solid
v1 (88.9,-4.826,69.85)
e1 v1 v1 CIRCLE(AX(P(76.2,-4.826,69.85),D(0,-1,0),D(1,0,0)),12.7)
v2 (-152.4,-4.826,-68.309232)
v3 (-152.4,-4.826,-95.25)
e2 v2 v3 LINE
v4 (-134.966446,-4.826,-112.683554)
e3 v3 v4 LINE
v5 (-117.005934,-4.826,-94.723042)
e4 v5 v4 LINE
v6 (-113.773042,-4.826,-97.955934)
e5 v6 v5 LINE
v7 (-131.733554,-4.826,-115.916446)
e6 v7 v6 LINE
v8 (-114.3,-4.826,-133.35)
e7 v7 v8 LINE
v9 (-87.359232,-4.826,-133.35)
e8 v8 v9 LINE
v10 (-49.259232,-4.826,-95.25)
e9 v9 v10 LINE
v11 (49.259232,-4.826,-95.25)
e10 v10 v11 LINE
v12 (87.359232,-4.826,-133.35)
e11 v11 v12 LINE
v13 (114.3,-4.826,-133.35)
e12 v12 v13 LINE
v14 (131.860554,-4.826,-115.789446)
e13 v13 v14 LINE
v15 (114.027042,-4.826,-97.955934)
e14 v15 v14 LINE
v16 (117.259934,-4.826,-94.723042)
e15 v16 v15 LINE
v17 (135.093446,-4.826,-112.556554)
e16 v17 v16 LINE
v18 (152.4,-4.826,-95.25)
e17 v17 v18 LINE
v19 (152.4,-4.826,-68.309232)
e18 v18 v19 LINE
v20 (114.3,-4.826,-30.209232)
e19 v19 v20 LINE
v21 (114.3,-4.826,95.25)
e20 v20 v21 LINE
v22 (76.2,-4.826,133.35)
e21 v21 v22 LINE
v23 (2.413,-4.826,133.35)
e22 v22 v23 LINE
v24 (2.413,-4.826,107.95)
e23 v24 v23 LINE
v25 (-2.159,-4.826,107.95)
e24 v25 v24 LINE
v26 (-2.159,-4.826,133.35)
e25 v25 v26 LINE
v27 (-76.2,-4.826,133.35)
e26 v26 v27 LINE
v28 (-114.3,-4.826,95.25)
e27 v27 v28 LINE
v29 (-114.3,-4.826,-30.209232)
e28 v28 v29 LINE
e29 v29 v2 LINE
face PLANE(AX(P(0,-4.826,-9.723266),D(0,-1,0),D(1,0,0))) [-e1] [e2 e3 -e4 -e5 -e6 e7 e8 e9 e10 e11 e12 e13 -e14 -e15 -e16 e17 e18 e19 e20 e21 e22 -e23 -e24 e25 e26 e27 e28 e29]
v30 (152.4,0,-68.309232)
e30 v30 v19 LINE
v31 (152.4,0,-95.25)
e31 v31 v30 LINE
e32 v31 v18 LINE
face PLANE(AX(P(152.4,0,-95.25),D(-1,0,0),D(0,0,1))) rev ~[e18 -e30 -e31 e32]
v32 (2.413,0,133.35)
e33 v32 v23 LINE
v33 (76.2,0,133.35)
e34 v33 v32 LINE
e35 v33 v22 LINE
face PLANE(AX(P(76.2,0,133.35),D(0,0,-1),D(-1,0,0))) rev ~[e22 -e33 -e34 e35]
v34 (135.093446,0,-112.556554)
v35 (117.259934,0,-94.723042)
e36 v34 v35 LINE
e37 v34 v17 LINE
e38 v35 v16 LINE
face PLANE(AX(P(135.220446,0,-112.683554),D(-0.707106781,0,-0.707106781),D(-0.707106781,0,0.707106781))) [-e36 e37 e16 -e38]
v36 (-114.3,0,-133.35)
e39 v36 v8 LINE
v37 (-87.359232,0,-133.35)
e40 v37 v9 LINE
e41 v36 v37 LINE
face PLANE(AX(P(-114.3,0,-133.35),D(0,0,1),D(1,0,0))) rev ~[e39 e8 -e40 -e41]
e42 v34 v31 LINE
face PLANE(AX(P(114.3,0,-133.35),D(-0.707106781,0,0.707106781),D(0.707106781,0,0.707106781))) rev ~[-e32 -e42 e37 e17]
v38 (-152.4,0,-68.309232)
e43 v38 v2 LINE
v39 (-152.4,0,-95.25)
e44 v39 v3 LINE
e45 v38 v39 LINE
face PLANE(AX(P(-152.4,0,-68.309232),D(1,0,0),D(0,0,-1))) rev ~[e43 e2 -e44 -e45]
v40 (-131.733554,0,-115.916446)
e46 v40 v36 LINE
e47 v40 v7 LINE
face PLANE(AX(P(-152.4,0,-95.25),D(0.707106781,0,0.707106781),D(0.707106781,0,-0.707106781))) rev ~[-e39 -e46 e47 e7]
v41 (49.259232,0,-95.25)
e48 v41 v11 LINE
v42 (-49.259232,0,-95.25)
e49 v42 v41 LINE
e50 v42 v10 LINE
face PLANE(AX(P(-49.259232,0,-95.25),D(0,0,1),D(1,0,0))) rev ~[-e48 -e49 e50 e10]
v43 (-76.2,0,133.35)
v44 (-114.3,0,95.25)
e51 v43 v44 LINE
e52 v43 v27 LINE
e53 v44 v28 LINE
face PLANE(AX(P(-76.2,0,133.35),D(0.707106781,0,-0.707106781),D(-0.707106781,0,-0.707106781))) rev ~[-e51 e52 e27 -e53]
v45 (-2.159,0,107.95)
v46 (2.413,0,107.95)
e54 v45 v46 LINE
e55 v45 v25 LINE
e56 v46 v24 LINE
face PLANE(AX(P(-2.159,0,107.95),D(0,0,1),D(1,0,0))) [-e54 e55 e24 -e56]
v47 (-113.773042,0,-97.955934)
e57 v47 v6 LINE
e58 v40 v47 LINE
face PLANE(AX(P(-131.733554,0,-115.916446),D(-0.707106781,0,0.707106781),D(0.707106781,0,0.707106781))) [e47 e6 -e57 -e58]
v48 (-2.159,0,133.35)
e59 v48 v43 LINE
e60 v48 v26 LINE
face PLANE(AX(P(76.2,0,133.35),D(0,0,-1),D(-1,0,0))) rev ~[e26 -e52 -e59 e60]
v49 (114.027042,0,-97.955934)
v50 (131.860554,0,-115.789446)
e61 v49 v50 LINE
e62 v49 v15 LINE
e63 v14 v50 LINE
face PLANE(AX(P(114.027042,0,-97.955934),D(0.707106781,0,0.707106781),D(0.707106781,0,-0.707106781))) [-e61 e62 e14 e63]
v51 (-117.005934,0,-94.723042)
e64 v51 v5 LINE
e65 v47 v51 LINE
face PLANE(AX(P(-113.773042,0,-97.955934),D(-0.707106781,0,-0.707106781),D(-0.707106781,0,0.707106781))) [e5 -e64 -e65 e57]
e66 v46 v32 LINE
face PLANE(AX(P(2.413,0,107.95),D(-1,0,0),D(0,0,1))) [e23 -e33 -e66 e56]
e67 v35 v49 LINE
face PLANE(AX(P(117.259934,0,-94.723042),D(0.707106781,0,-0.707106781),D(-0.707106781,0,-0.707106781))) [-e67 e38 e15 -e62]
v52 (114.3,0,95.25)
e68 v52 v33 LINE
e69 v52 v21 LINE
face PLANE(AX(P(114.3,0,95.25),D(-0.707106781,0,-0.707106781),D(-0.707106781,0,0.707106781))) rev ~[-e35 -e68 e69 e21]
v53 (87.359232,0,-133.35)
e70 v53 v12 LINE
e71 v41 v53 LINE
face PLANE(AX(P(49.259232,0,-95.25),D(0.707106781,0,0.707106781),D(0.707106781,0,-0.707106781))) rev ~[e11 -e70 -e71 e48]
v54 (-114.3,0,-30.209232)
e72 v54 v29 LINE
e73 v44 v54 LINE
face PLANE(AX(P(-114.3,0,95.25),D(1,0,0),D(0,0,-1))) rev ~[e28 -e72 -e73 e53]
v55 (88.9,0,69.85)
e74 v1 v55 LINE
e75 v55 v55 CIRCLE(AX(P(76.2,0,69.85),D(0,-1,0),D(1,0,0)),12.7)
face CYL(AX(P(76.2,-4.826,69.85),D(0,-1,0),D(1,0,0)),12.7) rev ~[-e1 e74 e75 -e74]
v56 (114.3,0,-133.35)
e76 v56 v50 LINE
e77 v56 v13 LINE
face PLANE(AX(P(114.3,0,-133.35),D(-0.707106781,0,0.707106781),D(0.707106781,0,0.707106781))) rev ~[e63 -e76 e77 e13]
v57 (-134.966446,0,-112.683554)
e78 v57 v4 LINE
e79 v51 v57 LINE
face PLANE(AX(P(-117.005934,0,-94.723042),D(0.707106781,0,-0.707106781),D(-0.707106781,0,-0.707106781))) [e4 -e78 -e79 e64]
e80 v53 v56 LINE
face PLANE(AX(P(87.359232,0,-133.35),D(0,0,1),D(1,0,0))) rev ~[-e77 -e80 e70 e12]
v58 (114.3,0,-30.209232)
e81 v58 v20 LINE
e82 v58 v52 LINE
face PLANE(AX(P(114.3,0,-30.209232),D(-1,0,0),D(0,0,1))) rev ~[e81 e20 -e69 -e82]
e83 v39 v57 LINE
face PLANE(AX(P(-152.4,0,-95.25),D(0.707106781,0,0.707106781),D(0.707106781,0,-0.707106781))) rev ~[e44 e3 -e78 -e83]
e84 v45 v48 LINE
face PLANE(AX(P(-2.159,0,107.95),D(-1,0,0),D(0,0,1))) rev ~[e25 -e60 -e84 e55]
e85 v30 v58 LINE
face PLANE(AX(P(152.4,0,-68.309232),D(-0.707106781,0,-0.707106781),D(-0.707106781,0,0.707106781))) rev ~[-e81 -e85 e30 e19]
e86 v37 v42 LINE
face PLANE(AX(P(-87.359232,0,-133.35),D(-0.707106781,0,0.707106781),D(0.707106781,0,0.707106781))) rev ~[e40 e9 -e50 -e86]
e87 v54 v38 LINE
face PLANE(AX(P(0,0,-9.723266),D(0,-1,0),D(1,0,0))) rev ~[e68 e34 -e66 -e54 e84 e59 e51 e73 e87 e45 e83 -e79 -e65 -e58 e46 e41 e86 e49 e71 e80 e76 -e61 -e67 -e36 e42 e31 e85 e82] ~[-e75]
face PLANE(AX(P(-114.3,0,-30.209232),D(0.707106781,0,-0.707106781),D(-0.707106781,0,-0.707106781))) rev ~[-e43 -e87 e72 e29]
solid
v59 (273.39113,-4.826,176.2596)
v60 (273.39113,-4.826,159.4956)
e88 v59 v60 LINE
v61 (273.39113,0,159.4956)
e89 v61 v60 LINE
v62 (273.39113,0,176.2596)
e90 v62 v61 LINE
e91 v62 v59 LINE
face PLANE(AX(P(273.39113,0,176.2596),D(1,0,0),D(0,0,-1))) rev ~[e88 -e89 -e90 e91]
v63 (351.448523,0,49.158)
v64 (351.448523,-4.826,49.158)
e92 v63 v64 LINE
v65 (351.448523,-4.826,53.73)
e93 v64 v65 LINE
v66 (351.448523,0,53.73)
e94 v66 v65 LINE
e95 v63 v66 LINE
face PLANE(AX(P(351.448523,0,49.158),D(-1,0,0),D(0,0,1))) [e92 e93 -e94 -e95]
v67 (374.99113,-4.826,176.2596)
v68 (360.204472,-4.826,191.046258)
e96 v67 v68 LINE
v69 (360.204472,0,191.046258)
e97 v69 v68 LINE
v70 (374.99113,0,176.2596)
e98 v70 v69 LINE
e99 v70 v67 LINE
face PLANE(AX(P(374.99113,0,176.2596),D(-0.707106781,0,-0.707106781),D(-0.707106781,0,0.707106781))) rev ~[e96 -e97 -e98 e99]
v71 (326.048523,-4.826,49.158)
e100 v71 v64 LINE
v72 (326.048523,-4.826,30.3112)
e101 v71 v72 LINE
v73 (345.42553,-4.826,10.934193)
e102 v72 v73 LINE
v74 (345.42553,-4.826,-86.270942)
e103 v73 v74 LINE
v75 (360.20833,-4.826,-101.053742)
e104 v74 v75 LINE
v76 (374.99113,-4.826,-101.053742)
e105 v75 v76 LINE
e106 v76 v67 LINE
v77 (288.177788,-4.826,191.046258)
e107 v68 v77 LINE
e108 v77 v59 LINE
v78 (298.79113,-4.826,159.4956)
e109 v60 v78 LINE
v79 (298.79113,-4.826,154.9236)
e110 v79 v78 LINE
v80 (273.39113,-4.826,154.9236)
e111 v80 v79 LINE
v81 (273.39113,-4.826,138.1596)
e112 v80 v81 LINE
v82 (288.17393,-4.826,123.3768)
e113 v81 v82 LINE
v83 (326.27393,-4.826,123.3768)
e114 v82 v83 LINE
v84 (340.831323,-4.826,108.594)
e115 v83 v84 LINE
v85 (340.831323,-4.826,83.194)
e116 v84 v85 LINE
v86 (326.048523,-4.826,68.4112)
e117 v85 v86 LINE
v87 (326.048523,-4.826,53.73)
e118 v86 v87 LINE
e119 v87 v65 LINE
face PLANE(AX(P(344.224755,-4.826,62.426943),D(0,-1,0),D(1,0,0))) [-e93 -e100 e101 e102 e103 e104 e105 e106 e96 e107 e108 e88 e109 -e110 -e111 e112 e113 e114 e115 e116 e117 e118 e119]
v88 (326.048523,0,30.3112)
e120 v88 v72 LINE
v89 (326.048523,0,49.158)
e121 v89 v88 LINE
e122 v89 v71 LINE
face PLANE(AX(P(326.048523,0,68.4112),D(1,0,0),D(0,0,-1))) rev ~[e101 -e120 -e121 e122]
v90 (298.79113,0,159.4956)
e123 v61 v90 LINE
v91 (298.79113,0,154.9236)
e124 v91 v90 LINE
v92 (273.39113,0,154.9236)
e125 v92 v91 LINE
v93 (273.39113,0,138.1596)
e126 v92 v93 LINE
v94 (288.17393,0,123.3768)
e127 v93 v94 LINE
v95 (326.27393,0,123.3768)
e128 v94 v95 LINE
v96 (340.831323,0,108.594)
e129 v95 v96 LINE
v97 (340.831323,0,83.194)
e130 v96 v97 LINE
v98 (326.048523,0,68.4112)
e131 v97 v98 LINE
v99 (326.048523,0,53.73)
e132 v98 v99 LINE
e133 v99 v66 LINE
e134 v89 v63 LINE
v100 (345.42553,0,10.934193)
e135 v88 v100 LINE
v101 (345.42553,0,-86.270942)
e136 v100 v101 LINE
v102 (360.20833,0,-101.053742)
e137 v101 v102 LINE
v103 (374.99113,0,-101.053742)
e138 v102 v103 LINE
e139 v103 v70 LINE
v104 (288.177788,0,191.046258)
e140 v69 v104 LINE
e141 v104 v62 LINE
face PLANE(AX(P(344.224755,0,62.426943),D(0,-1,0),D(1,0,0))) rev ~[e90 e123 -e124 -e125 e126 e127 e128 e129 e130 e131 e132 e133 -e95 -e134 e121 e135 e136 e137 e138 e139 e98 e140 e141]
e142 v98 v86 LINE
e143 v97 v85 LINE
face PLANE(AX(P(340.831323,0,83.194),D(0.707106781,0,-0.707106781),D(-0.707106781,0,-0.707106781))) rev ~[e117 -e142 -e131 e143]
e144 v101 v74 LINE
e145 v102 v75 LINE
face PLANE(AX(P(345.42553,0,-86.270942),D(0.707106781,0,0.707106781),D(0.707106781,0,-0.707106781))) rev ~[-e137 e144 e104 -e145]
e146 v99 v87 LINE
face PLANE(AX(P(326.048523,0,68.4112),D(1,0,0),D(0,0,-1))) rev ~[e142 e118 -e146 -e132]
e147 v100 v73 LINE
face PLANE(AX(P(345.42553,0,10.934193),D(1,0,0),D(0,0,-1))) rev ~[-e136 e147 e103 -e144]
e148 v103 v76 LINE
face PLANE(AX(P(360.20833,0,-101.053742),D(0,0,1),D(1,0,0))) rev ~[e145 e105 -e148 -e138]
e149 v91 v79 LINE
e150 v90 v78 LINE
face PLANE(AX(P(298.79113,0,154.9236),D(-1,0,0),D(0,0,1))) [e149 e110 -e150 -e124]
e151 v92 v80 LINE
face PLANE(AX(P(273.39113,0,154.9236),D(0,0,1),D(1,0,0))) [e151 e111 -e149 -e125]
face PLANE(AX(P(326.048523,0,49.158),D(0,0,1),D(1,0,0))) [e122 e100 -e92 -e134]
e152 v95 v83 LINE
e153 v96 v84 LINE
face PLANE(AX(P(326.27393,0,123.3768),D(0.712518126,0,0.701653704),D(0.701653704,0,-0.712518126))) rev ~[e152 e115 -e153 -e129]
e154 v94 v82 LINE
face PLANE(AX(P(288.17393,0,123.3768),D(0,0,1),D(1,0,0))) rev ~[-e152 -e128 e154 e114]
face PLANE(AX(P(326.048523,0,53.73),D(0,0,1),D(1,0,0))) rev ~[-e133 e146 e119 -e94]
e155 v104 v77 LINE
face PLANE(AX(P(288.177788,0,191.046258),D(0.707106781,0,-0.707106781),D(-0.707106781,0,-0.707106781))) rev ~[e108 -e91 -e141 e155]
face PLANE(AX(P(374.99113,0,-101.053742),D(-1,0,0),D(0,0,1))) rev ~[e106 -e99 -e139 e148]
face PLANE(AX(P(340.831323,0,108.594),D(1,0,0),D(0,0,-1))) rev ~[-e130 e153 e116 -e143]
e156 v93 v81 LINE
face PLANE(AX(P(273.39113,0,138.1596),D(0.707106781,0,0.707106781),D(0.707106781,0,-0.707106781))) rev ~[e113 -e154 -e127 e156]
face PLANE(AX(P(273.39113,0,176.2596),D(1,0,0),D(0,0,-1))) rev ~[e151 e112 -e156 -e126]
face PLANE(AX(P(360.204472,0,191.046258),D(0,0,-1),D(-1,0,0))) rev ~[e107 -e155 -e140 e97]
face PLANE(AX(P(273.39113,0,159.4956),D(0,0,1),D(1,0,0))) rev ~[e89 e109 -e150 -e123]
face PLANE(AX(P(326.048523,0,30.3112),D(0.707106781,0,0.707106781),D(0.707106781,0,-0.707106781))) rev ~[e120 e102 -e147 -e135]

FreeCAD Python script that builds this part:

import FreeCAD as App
import Part
import Sketcher
Q = App.Units.Quantity


def add_polygon(sketch, points):
    """Adds a closed chain of lines whose ends are joined by coincident constraints."""
    first, n = sketch.GeometryCount, len(points)
    for a, b in zip(points, points[1:] + points[:1]):
        sketch.addGeometry(Part.LineSegment(App.Vector(*a, 0), App.Vector(*b, 0)), False)
    for i in range(n):
        sketch.addConstraint(Sketcher.Constraint("Coincident", first + i, 2, first + (i + 1) % n, 1))

doc = App.newDocument("Part")
body = doc.addObject("PartDesign::Body", "Body")

# Sketch on XZ plane
sketch1 = body.newObject("Sketcher::SketchObject", "Sketch")
sketch1.AttachmentSupport = (doc.getObject("XZ_Plane"), [""])
sketch1.MapMode = "FlatFace"
add_polygon(sketch1, [(114, 95), (76, 133), (-76, 133), (-114, 95), (-114, -30), (-152, -68), (-152, -95), (-114, -133), (-87, -133), (-49, -95), (49, -95), (87, -133), (114, -133), (152, -95), (152, -68), (114, -30)])  # lines 0-15
sketch1.addConstraint([
    Sketcher.Constraint("Horizontal", 1),
    Sketcher.Constraint("Vertical", 3),
    Sketcher.Constraint("Vertical", 5),
    Sketcher.Constraint("Horizontal", 7),
    Sketcher.Constraint("Horizontal", 9),
    Sketcher.Constraint("Horizontal", 11),
    Sketcher.Constraint("Vertical", 13),
    Sketcher.Constraint("Vertical", 15),
    Sketcher.Constraint("Symmetric", 7, 2, 10, 2, -2),
    Sketcher.Constraint("Symmetric", 5, 2, 12, 2, -2),
    Sketcher.Constraint("Symmetric", 3, 2, 14, 2, -2),
    Sketcher.Constraint("Perpendicular", 0, 2),
    Sketcher.Constraint("Parallel", 2, 4),
    Sketcher.Constraint("Perpendicular", 4, 6),
    Sketcher.Constraint("Perpendicular", 6, 8),
    Sketcher.Constraint("Perpendicular", 8, 10),
    Sketcher.Constraint("Perpendicular", 10, 12),
    Sketcher.Constraint("Perpendicular", 12, 14),
    Sketcher.Constraint("Horizontal", 5, 2, 8, 2),
    Sketcher.Constraint("Horizontal", 4, 2, 13, 2),
    Sketcher.Constraint("Horizontal", 2, 2, 15, 2),
    Sketcher.Constraint("Vertical", 3, 2, 6, 2),
    Sketcher.Constraint("Equal", 11, 5),
    Sketcher.Constraint("Equal", 2, 4),
    Sketcher.Constraint("DistanceX", 1, 2, 1, 1, Q("6 in")),
    Sketcher.Constraint("DistanceX", 4, 2, -1, 1, Q("6 in")),
    Sketcher.Constraint("DistanceY", 5, 2, 1, 2, Q("9 in")),
    Sketcher.Constraint("DistanceY", -1, 1, 0, 2, Q("5.25 in")),
    Sketcher.Constraint("DistanceY", 3, 2, 3, 1, Q("125.459232 mm")),
])
pad1 = body.newObject("PartDesign::Pad", "Pad")
pad1.Profile = sketch1
pad1.Length = Q("0.19 in")
body2 = doc.addObject("PartDesign::Body", "Body001")

# Sketch on XZ plane
sketch2 = body2.newObject("Sketcher::SketchObject", "Sketch001")
sketch2.AttachmentSupport = (doc.getObject("XZ_Plane001"), [""])
sketch2.MapMode = "FlatFace"
add_polygon(sketch2, [(375, 176), (360, 191), (288, 191), (273, 176), (273, 138), (288, 123), (326, 123), (341, 109), (341, 83), (326, 68), (326, 30), (345, 11), (345, -86), (360, -101), (375, -101)])  # lines 0-14
sketch2.addConstraint([
    Sketcher.Constraint("Horizontal", 1),
    Sketcher.Constraint("Vertical", 3),
    Sketcher.Constraint("Horizontal", 5),
    Sketcher.Constraint("Vertical", 7),
    Sketcher.Constraint("Vertical", 9),
    Sketcher.Constraint("Vertical", 11),
    Sketcher.Constraint("Horizontal", 13),
    Sketcher.Constraint("Vertical", 14),
    Sketcher.Constraint("Perpendicular", 0, 2),
    Sketcher.Constraint("Perpendicular", 2, 4),
    Sketcher.Constraint("Perpendicular", 4, 8),
    Sketcher.Constraint("Perpendicular", 8, 10),
    Sketcher.Constraint("Parallel", 10, 12),
    Sketcher.Constraint("Horizontal", 2, 2, 14, 2),
    Sketcher.Constraint("Equal", 5, 3),
    Sketcher.Constraint("Equal", 3, 9),
    Sketcher.Constraint("Equal", 0, 2),
    Sketcher.Constraint("Equal", 4, 8),
    Sketcher.Constraint("Equal", 8, 12),
    Sketcher.Constraint("DistanceY", 7, 2, 7, 1, Q("1 in")),
    Sketcher.Constraint("DistanceX", 5, 1, 5, 2, Q("1.5 in")),
    Sketcher.Constraint("DistanceX", 13, 1, 13, 2, Q("0.582 in")),
    Sketcher.Constraint("DistanceX", 3, 2, 4, 2, Q("0.582 in")),
    Sketcher.Constraint("DistanceY", 6, 2, 5, 2, Q("0.582 in")),
    Sketcher.Constraint("DistanceX", 5, 2, 10, 2, Q("0.754 in")),
    Sketcher.Constraint("DistanceY", -1, 1, 2, 2, Q("176.2596 mm")),
    Sketcher.Constraint("Distance", 6, Q("20.747262 mm")),
    Sketcher.Constraint("DistanceX", 1, 2, 1, 1, Q("72.026684 mm")),
    Sketcher.Constraint("DistanceY", 11, 2, 11, 1, Q("97.205135 mm")),
    Sketcher.Constraint("DistanceX", -1, 1, 0, 2, Q("360.204472 mm")),
])
pad2 = body2.newObject("PartDesign::Pad", "Pad001")
pad2.Profile = sketch2
pad2.Length = Q("0.19 in")
body3 = doc.addObject("PartDesign::Body", "Body002")
body3.AllowCompound = True

# Sketch on XZ plane
sketch3 = body3.newObject("Sketcher::SketchObject", "Sketch002")
sketch3.AttachmentSupport = (doc.getObject("XZ_Plane002"), [""])
sketch3.MapMode = "FlatFace"
add_polygon(sketch3, [(-2.2, 133.3), (-2.2, 108), (2.4, 108), (2.4, 133.3)])  # lines 0-3
add_polygon(sketch3, [(-135, -112.7), (-131.7, -115.9), (-113.8, -98), (-117, -94.7)])  # lines 4-7
add_polygon(sketch3, [(114, -98), (132, -115.9), (135.2, -112.7), (117.3, -94.7)])  # lines 8-11
add_polygon(sketch3, [(273.4, 159.5), (273.4, 154.9), (298.8, 154.9), (298.8, 159.5)])  # lines 12-15
add_polygon(sketch3, [(326, 53.7), (326, 49.2), (351.4, 49.2), (351.4, 53.7)])  # lines 16-19
sketch3.addConstraint([
    Sketcher.Constraint("Vertical", 0),
    Sketcher.Constraint("Horizontal", 1),
    Sketcher.Constraint("Vertical", 2),
    Sketcher.Constraint("Horizontal", 3),
    Sketcher.Constraint("Vertical", 12),
    Sketcher.Constraint("Horizontal", 13),
    Sketcher.Constraint("Vertical", 14),
    Sketcher.Constraint("Horizontal", 15),
    Sketcher.Constraint("Vertical", 16),
    Sketcher.Constraint("Horizontal", 17),
    Sketcher.Constraint("Vertical", 18),
    Sketcher.Constraint("Horizontal", 19),
    Sketcher.Constraint("Perpendicular", 4, 5),
    Sketcher.Constraint("Perpendicular", 5, 6),
    Sketcher.Constraint("Perpendicular", 6, 7),
    Sketcher.Constraint("Perpendicular", 7, 8),
    Sketcher.Constraint("Perpendicular", 8, 9),
    Sketcher.Constraint("Perpendicular", 9, 10),
    Sketcher.Constraint("Perpendicular", 10, 11),
    Sketcher.Constraint("Horizontal", 4, 2, 8, 2),
    Sketcher.Constraint("Horizontal", 7, 2, 9, 2),
    Sketcher.Constraint("Horizontal", 6, 2, 10, 2),
    Sketcher.Constraint("Equal", 15, 17),
    Sketcher.Constraint("Equal", 19, 0),
    Sketcher.Constraint("Equal", 3, 12),
    Sketcher.Constraint("Equal", 14, 16),
    Sketcher.Constraint("Equal", 7, 8),
    Sketcher.Constraint("DistanceX", 13, 1, 13, 2, Q("1 in")),
    Sketcher.Constraint("Distance", 5, Q("1 in")),
    Sketcher.Constraint("DistanceX", 1, 1, 1, 2, Q("0.18 in")),
    Sketcher.Constraint("Distance", 4, Q("0.18 in")),
    Sketcher.Constraint("DistanceY", -1, 1, 0, 2, Q("4.25 in")),
    Sketcher.Constraint("DistanceX", 0, 2, -1, 1, Q("0.085 in")),
    Sketcher.Constraint("DistanceY", 16, 2, 13, 2, Q("4.164 in")),
    Sketcher.Constraint("DistanceY", -1, 1, 12, 2, Q("154.9236 mm")),
    Sketcher.Constraint("DistanceX", -1, 1, 11, 2, Q("114.027042 mm")),
    Sketcher.Constraint("DistanceX", -1, 1, 12, 2, Q("273.39113 mm")),
    Sketcher.Constraint("DistanceX", 5, 2, 0, 2, Q("111.614042 mm")),
    Sketcher.Constraint("DistanceY", 6, 2, 3, 2, Q("228.073042 mm")),
    Sketcher.Constraint("DistanceX", -1, 1, 16, 2, Q("326.048523 mm")),
])
pad3 = body3.newObject("PartDesign::Pad", "Pad002")
pad3.Profile = sketch3
pad3.Length = Q("0.19 in")
doc.recompute()

body4 = doc.addObject("PartDesign::Body", "Body003")
body4.BaseFeature = body3
boolean = body.newObject("PartDesign::Boolean", "Boolean")
boolean.Type = "Cut"
boolean.addObjects([body4])
doc.recompute()

# Sketch on XZ plane
sketch4 = body.newObject("Sketcher::SketchObject", "Sketch003")
sketch4.AttachmentSupport = (doc.getObject("XZ_Plane"), [""])
sketch4.MapMode = "FlatFace"
sketch4.AttachmentOffset = App.Placement(App.Vector(0, 0, 0.19 * 25.4), App.Rotation())
sketch4.addGeometry(Part.Circle(App.Vector(76, 70, 0), App.Vector(0, 0, 1), 13), False)
sketch4.addConstraint([
    Sketcher.Constraint("Diameter", 0, Q("1 in")),
    Sketcher.Constraint("DistanceX", -1, 1, 0, 3, Q("3 in")),
    Sketcher.Constraint("DistanceY", -1, 1, 0, 3, Q("2.75 in")),
])
pocket1 = body.newObject("PartDesign::Pocket", "Pocket")
pocket1.Profile = sketch4
pocket1.Type = "ThroughAll"
doc.recompute()

boolean2 = body2.newObject("PartDesign::Boolean", "Boolean001")
boolean2.Type = "Cut"
boolean2.addObjects([body3])

doc.recompute()
